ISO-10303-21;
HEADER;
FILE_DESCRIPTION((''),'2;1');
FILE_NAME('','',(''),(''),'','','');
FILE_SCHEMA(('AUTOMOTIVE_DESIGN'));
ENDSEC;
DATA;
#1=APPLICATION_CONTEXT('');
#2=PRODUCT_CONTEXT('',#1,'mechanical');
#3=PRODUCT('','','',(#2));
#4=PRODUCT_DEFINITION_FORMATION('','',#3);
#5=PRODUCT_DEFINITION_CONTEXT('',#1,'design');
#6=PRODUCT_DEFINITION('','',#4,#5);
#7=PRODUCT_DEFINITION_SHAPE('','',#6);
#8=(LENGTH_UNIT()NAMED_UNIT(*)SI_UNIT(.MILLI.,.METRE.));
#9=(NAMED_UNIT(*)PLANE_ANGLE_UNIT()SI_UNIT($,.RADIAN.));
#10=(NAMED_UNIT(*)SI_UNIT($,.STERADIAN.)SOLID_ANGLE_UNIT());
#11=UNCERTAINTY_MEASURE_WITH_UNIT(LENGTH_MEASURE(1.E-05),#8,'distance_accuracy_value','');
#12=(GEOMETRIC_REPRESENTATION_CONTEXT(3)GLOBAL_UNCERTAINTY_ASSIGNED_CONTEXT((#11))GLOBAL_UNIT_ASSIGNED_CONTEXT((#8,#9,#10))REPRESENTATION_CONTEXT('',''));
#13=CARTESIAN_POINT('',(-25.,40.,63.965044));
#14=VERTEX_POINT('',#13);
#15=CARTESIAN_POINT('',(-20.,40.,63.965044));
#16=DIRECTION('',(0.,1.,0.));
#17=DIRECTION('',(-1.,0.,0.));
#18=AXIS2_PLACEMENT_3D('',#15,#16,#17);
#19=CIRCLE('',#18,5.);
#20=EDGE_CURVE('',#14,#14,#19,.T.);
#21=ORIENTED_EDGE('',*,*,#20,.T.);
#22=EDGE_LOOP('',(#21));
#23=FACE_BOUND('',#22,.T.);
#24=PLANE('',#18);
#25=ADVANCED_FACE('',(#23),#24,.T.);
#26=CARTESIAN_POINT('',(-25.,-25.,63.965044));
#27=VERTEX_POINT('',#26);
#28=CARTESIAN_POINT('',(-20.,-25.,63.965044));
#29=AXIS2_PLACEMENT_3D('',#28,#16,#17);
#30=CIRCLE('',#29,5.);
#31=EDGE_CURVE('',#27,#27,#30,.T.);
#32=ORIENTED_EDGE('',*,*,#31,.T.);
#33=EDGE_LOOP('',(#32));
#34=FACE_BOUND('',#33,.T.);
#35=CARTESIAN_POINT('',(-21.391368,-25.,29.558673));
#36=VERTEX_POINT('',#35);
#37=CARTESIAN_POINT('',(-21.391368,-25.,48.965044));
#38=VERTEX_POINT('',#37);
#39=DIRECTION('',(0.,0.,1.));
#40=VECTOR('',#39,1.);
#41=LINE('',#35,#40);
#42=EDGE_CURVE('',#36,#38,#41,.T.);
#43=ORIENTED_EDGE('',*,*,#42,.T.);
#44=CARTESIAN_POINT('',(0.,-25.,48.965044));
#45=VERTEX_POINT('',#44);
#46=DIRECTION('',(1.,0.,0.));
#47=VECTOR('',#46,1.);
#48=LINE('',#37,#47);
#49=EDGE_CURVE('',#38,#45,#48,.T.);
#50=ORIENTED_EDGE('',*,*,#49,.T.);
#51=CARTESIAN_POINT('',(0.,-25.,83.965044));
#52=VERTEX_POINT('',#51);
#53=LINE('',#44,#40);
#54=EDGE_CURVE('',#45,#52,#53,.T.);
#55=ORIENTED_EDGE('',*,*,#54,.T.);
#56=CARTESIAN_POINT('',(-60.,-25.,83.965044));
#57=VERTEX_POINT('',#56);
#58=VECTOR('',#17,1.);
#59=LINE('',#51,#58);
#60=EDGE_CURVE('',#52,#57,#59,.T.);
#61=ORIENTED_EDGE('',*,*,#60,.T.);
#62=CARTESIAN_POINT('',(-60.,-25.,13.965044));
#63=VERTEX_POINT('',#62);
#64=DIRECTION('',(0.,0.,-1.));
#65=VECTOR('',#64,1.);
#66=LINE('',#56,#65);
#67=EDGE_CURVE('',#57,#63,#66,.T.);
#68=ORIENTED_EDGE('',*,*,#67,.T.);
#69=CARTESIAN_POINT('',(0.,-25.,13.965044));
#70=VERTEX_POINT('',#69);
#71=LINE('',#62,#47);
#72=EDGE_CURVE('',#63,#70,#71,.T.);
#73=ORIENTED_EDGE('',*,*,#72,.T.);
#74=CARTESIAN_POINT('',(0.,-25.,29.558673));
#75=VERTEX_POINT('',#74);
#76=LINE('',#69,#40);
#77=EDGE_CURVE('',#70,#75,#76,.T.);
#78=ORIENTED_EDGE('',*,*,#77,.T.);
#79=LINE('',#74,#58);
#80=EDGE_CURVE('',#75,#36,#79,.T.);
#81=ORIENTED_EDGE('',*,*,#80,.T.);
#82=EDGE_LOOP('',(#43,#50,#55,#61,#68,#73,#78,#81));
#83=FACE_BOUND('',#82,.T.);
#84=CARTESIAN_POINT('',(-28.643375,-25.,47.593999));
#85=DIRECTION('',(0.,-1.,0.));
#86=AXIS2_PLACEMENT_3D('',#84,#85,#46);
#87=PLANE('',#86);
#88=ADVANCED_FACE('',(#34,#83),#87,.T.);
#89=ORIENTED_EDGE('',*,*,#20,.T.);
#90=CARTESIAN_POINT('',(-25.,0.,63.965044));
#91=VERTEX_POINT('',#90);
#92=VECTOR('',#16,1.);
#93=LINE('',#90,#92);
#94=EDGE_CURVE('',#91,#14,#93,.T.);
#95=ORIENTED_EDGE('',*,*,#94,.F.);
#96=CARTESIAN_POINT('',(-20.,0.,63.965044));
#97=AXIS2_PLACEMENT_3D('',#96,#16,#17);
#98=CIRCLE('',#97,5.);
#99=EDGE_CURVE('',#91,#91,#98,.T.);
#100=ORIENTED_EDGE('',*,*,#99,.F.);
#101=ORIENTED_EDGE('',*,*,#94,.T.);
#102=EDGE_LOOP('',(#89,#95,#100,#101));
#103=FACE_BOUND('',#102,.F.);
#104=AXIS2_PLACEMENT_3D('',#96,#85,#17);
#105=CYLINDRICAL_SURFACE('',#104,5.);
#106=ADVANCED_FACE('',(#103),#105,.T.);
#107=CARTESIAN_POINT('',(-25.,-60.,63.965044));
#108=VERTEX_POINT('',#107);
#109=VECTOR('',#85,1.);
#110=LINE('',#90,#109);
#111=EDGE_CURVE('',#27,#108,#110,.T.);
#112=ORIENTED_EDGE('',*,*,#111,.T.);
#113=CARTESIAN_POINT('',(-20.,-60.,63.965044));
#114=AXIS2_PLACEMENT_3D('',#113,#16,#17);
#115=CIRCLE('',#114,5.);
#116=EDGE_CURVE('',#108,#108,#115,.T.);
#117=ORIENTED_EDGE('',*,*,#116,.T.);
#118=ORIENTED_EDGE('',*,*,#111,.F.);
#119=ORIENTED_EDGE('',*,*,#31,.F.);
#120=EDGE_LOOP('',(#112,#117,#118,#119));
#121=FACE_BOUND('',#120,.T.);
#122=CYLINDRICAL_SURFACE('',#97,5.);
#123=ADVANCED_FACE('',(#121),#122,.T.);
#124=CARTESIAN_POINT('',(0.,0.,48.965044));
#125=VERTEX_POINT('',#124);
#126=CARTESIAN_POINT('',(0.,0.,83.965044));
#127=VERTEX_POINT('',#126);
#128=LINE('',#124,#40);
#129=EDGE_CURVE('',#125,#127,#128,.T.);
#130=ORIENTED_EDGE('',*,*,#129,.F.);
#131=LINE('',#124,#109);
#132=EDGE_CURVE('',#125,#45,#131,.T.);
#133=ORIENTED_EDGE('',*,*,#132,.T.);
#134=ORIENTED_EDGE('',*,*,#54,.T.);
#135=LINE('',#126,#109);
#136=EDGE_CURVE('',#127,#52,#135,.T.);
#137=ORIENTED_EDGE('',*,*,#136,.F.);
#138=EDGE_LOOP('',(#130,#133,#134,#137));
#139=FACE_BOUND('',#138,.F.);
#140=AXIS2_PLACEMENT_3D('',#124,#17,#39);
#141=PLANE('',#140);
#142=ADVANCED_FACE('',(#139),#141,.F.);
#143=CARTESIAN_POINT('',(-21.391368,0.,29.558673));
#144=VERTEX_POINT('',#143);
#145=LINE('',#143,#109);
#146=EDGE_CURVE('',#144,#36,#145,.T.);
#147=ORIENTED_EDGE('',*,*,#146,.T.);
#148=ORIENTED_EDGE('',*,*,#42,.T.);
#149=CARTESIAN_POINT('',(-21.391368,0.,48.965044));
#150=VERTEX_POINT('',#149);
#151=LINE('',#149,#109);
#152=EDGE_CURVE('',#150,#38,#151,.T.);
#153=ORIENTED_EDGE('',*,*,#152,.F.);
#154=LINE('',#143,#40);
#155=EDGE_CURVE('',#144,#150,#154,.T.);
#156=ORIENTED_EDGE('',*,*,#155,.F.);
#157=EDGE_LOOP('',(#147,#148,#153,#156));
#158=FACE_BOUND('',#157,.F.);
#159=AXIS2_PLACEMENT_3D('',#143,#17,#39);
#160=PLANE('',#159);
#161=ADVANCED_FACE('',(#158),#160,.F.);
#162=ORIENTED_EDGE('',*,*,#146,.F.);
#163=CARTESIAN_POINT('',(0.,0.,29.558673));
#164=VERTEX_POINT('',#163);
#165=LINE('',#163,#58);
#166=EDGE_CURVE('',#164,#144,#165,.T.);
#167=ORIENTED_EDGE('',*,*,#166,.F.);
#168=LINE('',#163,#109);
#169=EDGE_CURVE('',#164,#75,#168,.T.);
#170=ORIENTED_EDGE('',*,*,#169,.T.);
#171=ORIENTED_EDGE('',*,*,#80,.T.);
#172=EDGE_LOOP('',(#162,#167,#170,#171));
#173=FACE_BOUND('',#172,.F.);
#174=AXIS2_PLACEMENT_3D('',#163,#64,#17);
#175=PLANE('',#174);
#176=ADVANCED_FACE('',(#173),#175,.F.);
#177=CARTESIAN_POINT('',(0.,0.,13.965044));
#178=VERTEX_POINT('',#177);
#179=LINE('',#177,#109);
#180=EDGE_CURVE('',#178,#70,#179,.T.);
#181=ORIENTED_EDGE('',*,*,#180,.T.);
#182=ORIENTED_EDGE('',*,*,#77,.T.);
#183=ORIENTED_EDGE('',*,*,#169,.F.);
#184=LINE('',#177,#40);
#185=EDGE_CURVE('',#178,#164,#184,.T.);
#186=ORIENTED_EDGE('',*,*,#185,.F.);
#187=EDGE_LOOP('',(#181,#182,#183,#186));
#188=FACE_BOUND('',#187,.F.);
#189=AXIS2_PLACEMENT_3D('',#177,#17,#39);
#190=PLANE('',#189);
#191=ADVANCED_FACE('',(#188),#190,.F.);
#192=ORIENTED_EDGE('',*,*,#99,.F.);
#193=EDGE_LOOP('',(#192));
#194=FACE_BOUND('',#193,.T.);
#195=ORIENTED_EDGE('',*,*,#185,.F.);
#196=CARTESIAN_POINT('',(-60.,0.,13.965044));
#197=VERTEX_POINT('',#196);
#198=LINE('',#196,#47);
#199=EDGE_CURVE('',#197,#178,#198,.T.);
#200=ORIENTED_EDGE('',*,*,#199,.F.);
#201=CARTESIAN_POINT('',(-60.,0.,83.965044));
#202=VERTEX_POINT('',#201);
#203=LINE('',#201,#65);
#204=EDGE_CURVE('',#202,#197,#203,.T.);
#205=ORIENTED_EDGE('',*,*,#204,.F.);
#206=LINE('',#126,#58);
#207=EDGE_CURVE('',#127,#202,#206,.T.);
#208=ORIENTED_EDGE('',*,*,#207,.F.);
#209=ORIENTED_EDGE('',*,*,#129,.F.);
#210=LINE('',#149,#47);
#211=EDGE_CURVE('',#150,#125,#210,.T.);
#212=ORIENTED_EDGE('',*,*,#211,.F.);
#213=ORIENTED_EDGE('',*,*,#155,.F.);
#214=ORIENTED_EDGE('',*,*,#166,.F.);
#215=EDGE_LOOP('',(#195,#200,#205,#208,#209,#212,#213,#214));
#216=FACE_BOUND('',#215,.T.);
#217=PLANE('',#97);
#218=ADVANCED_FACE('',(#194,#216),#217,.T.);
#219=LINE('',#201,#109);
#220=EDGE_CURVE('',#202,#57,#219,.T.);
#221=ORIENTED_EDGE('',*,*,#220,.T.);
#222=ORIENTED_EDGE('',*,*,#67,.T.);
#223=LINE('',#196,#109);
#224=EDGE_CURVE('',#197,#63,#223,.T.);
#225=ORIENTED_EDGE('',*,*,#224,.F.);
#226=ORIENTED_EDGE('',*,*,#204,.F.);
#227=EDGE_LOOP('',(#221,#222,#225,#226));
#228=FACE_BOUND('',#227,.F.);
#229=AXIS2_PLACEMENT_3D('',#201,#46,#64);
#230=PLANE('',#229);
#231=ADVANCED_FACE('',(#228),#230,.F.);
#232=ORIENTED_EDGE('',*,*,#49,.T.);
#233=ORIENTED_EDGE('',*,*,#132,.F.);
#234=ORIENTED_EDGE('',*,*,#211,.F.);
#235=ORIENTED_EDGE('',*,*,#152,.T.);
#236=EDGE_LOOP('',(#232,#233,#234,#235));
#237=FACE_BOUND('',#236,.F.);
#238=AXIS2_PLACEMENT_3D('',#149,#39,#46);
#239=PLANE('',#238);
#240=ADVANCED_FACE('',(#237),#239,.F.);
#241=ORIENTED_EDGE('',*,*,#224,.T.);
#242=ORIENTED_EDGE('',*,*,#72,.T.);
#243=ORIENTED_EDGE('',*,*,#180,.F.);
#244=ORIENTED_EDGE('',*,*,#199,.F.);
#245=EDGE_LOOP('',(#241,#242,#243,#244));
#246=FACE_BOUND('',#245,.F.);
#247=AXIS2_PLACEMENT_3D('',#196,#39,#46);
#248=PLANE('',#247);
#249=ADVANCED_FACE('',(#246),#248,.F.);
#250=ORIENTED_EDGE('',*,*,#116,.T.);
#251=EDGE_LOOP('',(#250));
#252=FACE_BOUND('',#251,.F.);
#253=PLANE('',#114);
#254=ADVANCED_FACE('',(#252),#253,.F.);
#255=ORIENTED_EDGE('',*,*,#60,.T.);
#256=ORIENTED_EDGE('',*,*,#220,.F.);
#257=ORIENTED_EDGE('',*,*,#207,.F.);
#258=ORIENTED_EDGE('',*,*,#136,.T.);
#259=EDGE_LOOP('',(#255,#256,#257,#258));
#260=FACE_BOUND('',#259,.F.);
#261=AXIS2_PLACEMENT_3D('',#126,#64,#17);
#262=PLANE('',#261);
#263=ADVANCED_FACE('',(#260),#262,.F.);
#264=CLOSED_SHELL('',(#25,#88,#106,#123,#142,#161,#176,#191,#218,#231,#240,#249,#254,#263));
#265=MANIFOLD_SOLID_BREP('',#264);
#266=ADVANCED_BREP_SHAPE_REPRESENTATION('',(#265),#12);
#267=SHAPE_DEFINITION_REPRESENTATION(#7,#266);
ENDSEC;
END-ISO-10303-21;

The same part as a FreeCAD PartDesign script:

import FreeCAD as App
import Part
import Sketcher
from FreeCAD import Vector

doc = App.newDocument("Part")
params = doc.addObject("Spreadsheet::Sheet", "Params")
for row, (alias, value) in enumerate([
    ("sketch1_width", "60 mm"),
    ("sketch1_height", "70 mm"),
    ("sketch1_height2", "35 mm"),
    ("pad1_length", "25 mm"),
    ("sketch2_diameter", "10 mm"),
    ("pad2_length", "60 mm"),
    ("pad2_length2", "40 mm"),
], start=1):
    params.set(f"A{row}", alias)
    params.set(f"B{row}", "=" + value)
    params.setAlias(f"B{row}", alias)

body = doc.addObject("PartDesign::Body", "Body")

sketch1 = body.newObject("Sketcher::SketchObject", "Sketch")
sketch1.AttachmentSupport = (doc.getObject("XZ_Plane"), [""])
sketch1.MapMode = "FlatFace"
sketch1.addGeometry([
    Part.LineSegment(Vector(0, 83.965044, 0), Vector(-60, 83.965044, 0)),
    Part.LineSegment(Vector(-60, 83.965044, 0), Vector(-60, 13.965044, 0)),
    Part.LineSegment(Vector(-60, 13.965044, 0), Vector(0, 13.965044, 0)),
    Part.LineSegment(Vector(0, 13.965044, 0), Vector(0, 29.558673, 0)),
    Part.LineSegment(Vector(0, 29.558673, 0), Vector(-21.391368, 29.558673, 0)),
    Part.LineSegment(Vector(-21.391368, 29.558673, 0), Vector(-21.391368, 48.965044, 0)),
    Part.LineSegment(Vector(-21.391368, 48.965044, 0), Vector(0, 48.965044, 0)),
    Part.LineSegment(Vector(0, 48.965044, 0), Vector(0, 83.965044, 0)),
], False)
sketch1.addConstraint([
    Sketcher.Constraint("Coincident", 0, 2, 1, 1),
    Sketcher.Constraint("Coincident", 1, 2, 2, 1),
    Sketcher.Constraint("Coincident", 2, 2, 3, 1),
    Sketcher.Constraint("Coincident", 3, 2, 4, 1),
    Sketcher.Constraint("Coincident", 4, 2, 5, 1),
    Sketcher.Constraint("Coincident", 5, 2, 6, 1),
    Sketcher.Constraint("Coincident", 6, 2, 7, 1),
    Sketcher.Constraint("Coincident", 7, 2, 0, 1),
    Sketcher.Constraint("Horizontal", 0),
    Sketcher.Constraint("Vertical", 1),
    Sketcher.Constraint("Horizontal", 2),
    Sketcher.Constraint("Vertical", 3),
    Sketcher.Constraint("Horizontal", 4),
    Sketcher.Constraint("Vertical", 5),
    Sketcher.Constraint("Horizontal", 6),
    Sketcher.Constraint("Vertical", 7),
    Sketcher.Constraint("PointOnObject", 2, 2, -2),
    Sketcher.Constraint("PointOnObject", 6, 2, -2),
    Sketcher.Constraint("DistanceX", 0, 2, 0, 1, 60.0),
    Sketcher.Constraint("DistanceY", 1, 2, 1, 1, 70.0),
    Sketcher.Constraint("DistanceY", 7, 1, 7, 2, 35.0),
    Sketcher.Constraint("DistanceY", 3, 1, 3, 2, 15.593629),
    Sketcher.Constraint("DistanceX", 4, 2, 4, 1, 21.391368),
    Sketcher.Constraint("DistanceY", -1, 1, 0, 2, 83.965044),
])
sketch1.setExpression("Constraints[18]", "Params.sketch1_width")
sketch1.setExpression("Constraints[19]", "Params.sketch1_height")
sketch1.setExpression("Constraints[20]", "Params.sketch1_height2")
pad1 = body.newObject("PartDesign::Pad", "Pad")
pad1.Profile = sketch1
pad1.setExpression("Length", "Params.pad1_length")

sketch2 = body.newObject("Sketcher::SketchObject", "Sketch001")
sketch2.AttachmentSupport = (doc.getObject("XZ_Plane"), [""])
sketch2.MapMode = "FlatFace"
sketch2.addGeometry(Part.Circle(Vector(-20, 63.965044, 0), Vector(0, 0, 1), 5), False)
sketch2.addConstraint([
    Sketcher.Constraint("Diameter", 0, 10.0),
    Sketcher.Constraint("DistanceX", 0, 3, -1, 1, 20.0),
    Sketcher.Constraint("DistanceY", -1, 1, 0, 3, 63.965044),
])
sketch2.setExpression("Constraints[0]", "Params.sketch2_diameter")
pad2 = body.newObject("PartDesign::Pad", "Pad001")
pad2.Profile = sketch2
pad2.Type = "TwoLengths"
pad2.setExpression("Length", "Params.pad2_length")
pad2.setExpression("Length2", "Params.pad2_length2")

doc.recompute()
